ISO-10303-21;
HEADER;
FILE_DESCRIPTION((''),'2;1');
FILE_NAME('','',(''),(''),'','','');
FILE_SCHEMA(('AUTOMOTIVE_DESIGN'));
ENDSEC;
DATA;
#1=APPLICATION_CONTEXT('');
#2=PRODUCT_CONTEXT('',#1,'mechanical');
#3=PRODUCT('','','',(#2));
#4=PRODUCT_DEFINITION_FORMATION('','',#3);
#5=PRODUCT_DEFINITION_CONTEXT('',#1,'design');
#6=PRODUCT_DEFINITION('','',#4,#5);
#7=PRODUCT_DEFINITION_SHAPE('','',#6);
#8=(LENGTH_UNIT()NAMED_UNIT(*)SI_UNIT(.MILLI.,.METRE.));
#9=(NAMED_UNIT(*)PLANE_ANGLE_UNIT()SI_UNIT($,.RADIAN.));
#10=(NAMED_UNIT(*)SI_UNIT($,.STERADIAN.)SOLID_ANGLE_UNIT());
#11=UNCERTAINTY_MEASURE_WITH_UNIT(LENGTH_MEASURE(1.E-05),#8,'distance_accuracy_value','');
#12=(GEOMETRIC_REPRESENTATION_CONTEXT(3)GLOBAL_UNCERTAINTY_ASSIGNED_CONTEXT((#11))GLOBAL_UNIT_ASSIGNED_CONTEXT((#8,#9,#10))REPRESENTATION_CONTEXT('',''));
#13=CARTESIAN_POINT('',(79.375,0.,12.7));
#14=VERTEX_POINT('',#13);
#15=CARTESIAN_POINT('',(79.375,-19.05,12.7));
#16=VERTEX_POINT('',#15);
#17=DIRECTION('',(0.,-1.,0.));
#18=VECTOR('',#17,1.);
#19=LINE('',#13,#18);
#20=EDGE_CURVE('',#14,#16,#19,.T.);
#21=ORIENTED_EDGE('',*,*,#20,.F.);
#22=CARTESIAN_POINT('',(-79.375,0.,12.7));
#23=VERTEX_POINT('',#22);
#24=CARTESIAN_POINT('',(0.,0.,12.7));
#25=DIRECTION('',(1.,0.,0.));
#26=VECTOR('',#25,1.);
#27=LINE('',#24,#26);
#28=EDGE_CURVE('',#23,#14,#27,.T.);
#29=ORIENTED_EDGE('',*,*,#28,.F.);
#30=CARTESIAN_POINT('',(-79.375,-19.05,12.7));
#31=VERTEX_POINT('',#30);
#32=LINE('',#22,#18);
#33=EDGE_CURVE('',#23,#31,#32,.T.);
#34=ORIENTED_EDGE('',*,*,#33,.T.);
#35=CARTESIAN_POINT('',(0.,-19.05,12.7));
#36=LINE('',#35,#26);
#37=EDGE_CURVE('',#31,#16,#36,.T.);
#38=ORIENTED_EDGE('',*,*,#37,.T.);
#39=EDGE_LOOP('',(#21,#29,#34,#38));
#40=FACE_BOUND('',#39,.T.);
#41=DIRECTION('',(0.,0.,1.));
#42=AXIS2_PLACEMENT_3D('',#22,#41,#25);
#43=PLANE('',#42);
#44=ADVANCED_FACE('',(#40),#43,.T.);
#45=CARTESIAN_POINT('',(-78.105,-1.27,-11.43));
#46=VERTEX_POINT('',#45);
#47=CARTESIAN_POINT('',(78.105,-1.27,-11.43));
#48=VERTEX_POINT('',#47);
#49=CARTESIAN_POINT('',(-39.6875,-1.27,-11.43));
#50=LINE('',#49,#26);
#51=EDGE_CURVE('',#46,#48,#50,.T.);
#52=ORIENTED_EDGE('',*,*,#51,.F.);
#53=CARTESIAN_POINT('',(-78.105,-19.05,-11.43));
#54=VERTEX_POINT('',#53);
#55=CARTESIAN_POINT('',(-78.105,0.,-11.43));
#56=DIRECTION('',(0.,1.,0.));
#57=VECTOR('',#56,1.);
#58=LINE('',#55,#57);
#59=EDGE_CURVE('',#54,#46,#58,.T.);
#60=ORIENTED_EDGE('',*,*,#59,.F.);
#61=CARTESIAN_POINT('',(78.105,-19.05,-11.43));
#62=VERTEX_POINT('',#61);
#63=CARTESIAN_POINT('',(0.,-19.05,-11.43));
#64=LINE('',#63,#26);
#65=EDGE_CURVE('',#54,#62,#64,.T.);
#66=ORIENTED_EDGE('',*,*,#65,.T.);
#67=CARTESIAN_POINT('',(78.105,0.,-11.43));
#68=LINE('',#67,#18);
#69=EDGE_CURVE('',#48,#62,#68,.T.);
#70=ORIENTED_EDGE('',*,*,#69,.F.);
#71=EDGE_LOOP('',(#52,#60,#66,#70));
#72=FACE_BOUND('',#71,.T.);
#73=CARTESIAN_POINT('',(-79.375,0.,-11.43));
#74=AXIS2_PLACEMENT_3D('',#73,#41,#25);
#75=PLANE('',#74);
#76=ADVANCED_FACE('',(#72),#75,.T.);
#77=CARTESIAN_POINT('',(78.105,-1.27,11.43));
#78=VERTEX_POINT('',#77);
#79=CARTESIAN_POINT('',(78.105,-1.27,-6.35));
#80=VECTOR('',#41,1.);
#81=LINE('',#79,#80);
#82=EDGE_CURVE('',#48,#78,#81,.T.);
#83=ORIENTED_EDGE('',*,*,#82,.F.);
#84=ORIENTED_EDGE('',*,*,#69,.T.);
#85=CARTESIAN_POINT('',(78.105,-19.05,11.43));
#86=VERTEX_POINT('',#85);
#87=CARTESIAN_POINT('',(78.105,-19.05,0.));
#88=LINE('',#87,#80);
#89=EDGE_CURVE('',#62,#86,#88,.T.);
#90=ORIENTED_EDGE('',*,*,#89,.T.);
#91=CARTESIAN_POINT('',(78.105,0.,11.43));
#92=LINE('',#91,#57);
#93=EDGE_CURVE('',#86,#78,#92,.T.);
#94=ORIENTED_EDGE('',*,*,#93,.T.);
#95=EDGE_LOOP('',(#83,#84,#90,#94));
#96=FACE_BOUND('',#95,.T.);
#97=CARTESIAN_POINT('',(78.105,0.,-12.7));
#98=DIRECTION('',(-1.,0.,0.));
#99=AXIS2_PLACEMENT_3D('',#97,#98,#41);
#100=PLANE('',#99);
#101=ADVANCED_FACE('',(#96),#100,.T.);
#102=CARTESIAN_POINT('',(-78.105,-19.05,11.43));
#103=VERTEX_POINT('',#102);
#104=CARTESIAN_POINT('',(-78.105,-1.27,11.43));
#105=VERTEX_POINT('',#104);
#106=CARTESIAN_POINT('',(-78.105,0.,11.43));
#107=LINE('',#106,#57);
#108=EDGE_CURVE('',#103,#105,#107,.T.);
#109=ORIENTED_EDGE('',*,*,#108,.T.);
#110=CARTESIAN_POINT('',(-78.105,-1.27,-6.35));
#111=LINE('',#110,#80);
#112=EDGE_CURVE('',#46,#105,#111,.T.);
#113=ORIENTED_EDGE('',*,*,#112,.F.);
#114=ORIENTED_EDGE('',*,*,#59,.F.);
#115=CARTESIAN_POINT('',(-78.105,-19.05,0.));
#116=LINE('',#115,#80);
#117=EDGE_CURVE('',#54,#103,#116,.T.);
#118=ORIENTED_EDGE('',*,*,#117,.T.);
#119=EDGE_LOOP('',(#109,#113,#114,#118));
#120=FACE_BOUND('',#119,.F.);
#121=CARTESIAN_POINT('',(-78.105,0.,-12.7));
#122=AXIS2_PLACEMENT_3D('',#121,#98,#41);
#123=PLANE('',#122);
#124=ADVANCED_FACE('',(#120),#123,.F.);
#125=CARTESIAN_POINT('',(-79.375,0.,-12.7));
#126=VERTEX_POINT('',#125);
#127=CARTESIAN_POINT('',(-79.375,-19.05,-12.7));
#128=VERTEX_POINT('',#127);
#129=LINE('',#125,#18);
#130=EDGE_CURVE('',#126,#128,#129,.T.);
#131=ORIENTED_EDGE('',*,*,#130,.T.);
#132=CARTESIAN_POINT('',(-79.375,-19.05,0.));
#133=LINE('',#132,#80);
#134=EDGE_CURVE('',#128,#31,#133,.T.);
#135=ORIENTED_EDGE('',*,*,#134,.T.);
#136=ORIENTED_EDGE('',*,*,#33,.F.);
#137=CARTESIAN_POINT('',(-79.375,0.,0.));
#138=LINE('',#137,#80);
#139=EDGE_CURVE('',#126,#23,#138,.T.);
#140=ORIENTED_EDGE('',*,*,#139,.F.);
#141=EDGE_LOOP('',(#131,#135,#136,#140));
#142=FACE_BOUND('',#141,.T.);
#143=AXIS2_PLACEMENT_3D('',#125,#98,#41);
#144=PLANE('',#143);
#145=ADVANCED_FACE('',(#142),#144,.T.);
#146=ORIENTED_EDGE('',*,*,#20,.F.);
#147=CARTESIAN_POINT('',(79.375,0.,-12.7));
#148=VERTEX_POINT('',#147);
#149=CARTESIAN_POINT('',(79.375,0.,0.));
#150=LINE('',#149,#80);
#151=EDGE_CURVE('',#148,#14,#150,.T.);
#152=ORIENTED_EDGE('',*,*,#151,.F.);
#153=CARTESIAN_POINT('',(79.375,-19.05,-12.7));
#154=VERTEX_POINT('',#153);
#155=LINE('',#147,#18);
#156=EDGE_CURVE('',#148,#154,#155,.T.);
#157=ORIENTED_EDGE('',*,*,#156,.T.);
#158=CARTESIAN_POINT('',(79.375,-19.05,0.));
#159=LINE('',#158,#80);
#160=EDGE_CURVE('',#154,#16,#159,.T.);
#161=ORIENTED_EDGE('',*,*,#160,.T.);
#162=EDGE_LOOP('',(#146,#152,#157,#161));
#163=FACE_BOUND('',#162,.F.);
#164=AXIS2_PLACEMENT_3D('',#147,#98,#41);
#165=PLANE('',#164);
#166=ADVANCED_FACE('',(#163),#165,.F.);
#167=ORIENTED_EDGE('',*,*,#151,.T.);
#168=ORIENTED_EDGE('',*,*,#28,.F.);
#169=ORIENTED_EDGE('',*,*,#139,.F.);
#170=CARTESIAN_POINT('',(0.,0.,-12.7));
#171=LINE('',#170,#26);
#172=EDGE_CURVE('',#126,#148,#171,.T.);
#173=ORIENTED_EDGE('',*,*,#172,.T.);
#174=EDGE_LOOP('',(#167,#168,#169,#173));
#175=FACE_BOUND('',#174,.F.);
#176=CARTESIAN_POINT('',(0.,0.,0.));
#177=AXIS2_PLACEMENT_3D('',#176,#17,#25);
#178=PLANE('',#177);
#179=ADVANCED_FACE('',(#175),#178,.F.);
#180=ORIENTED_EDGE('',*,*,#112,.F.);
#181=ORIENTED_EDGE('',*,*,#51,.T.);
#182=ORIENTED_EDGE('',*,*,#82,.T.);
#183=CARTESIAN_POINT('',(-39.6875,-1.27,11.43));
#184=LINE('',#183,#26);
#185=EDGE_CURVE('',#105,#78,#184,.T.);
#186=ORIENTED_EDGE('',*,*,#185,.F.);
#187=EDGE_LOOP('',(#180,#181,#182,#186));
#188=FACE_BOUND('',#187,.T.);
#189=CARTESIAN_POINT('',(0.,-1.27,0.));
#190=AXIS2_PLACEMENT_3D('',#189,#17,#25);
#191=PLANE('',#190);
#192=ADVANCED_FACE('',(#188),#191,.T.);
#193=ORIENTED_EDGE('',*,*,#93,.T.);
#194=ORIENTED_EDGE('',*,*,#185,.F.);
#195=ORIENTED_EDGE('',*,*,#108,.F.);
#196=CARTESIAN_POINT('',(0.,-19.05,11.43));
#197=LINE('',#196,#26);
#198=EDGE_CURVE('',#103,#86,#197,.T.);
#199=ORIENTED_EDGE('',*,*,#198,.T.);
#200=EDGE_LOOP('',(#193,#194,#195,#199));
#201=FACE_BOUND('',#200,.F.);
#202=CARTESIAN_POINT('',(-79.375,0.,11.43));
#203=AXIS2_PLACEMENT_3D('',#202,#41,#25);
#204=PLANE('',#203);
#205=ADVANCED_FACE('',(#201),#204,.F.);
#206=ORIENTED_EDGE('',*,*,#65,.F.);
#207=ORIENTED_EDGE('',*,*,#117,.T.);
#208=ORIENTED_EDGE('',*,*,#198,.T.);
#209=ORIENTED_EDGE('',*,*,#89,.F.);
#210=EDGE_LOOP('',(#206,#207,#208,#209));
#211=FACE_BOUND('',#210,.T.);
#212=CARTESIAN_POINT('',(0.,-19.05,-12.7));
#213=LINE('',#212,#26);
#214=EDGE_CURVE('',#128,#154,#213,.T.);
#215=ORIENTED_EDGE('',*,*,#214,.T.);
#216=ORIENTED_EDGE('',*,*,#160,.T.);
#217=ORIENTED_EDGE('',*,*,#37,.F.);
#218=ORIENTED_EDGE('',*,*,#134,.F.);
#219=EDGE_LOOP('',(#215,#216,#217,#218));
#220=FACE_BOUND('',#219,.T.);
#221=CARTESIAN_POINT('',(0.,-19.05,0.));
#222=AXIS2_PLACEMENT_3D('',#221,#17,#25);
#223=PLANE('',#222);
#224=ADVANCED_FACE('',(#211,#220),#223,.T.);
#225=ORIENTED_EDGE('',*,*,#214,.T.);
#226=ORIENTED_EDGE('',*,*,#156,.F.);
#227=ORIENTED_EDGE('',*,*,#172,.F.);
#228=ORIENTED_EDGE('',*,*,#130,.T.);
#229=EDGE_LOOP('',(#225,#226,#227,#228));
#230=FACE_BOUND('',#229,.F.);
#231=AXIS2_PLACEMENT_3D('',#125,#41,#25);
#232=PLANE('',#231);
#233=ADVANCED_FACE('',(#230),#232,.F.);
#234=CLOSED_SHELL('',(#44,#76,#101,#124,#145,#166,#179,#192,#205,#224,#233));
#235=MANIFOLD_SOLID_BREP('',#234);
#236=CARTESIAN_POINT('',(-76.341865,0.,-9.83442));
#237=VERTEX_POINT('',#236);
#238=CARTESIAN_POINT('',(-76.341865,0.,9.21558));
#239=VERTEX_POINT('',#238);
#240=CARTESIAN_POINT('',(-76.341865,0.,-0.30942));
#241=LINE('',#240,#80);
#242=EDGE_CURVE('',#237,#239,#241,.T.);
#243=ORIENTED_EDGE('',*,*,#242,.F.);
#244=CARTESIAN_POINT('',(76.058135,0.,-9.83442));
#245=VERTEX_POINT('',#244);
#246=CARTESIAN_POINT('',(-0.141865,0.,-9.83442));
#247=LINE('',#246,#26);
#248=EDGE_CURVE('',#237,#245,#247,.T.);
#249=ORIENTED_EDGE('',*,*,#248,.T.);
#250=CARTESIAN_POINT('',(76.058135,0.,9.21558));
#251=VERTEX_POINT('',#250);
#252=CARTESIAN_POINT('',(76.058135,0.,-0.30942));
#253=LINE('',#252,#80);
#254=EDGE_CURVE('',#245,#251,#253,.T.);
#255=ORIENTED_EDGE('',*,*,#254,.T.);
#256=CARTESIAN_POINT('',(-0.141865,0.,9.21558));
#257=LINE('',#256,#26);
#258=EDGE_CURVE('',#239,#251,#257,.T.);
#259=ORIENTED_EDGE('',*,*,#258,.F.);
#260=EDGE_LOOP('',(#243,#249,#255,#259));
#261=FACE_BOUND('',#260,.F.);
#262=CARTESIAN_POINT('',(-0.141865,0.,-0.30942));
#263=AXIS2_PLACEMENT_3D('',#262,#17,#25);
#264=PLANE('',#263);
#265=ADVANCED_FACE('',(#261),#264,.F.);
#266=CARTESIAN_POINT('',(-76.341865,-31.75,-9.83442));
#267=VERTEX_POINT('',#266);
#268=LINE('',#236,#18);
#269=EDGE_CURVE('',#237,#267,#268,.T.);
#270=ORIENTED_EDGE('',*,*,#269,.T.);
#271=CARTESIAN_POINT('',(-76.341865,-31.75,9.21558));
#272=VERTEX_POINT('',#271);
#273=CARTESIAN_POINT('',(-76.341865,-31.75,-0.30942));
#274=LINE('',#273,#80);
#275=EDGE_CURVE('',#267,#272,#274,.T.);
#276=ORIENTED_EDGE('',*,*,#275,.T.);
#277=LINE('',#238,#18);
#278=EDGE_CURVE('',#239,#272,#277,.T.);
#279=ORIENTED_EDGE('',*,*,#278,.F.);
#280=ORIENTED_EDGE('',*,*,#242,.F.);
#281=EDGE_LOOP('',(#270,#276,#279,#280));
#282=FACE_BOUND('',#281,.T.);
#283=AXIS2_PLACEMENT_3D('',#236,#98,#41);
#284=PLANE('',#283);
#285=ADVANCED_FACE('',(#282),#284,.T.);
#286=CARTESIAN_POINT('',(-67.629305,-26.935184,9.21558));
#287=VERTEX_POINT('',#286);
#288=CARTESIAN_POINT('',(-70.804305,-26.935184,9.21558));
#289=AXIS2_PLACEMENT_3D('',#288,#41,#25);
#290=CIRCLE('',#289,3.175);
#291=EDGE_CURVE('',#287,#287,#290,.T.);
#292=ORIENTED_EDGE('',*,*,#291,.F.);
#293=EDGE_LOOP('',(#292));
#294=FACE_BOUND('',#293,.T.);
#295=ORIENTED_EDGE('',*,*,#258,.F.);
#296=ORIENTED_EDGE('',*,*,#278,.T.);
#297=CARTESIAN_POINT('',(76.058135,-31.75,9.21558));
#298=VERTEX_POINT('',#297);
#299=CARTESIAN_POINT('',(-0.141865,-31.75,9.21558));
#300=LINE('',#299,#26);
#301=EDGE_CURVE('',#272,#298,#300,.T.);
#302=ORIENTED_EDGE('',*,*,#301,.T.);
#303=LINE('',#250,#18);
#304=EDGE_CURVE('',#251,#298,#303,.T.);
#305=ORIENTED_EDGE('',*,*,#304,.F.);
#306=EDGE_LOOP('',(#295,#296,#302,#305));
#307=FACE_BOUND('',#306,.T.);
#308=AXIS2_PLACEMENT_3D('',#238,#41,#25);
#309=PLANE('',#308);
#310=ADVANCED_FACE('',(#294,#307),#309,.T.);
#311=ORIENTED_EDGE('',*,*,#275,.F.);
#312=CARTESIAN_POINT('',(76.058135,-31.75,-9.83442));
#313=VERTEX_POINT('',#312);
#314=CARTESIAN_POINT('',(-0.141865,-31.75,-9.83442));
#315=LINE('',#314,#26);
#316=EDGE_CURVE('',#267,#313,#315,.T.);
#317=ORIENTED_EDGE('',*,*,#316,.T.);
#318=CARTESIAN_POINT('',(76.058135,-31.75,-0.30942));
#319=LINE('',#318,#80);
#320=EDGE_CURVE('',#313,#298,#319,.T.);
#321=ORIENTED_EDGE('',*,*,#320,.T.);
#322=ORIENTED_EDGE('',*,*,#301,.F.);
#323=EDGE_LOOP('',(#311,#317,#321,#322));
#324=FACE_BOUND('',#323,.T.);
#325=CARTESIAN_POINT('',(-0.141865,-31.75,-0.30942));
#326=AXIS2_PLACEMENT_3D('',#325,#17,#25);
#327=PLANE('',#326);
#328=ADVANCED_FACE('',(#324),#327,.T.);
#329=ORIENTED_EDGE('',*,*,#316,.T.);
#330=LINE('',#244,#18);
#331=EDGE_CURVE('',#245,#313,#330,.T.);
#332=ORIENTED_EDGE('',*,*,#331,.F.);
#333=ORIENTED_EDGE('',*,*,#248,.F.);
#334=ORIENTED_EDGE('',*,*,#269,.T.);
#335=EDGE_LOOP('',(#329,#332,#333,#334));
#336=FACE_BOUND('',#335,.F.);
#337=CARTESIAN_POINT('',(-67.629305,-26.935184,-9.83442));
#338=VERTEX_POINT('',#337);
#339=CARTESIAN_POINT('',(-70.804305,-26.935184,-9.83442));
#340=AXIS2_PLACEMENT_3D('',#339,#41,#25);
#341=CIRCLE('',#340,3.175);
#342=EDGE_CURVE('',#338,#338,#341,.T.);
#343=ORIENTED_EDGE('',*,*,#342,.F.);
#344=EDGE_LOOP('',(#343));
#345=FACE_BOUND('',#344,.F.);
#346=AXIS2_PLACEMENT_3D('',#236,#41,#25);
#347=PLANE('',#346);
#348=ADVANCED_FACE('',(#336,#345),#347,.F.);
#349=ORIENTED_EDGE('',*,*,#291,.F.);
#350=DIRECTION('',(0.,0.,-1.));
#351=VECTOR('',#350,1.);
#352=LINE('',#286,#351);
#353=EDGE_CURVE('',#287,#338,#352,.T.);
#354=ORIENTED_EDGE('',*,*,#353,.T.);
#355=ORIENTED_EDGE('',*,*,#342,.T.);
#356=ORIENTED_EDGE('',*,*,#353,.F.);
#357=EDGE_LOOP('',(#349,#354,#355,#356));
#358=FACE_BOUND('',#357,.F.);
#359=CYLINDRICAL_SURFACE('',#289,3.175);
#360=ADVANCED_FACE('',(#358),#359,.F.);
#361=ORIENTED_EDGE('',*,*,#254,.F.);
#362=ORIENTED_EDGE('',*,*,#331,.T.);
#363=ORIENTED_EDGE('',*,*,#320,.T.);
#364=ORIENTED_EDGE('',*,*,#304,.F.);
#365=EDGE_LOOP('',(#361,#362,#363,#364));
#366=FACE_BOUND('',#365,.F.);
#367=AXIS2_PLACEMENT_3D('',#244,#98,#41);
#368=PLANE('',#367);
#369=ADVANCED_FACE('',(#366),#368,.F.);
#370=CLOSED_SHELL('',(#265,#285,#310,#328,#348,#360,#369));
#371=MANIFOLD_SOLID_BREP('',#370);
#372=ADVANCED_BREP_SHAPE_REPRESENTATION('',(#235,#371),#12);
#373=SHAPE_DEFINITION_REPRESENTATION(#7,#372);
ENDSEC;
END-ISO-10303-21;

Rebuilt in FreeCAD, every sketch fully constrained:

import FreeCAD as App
import Part
import Sketcher
Q = App.Units.Quantity


def faces_at(feature, points):
    """Names of the faces that lie closest to the given points."""
    faces = feature.Shape.Faces
    near = lambda p: min(range(len(faces)), key=lambda i: faces[i].distToShape(Part.Vertex(*p))[0])
    return sorted({f"Face{near(p) + 1}" for p in points})

doc = App.newDocument("Part")
body = doc.addObject("PartDesign::Body", "Body")

sketch1 = doc.addObject("Sketcher::SketchObject", "Sketch")
body.addObject(sketch1)
sketch1.AttachmentSupport = (doc.XZ_Plane, [""])
sketch1.MapMode = "FlatFace"
sketch1.addGeometry([
    Part.LineSegment(App.Vector(-79, 13, 0), App.Vector(-79, -13, 0)),
    Part.LineSegment(App.Vector(-79, -13, 0), App.Vector(79, -13, 0)),
    Part.LineSegment(App.Vector(79, -13, 0), App.Vector(79, 13, 0)),
    Part.LineSegment(App.Vector(79, 13, 0), App.Vector(-79, 13, 0)),
], False)
sketch1.addConstraint([
    Sketcher.Constraint("Coincident", 0, 2, 1, 1),
    Sketcher.Constraint("Coincident", 1, 2, 2, 1),
    Sketcher.Constraint("Coincident", 2, 2, 3, 1),
    Sketcher.Constraint("Coincident", 3, 2, 0, 1),
    Sketcher.Constraint("Vertical", 0),
    Sketcher.Constraint("Horizontal", 1),
    Sketcher.Constraint("Vertical", 2),
    Sketcher.Constraint("Horizontal", 3),
    Sketcher.Constraint("Symmetric", 0, 2, 2, 2, -1, 1),
    Sketcher.Constraint("DistanceY", 0, 2, 0, 1, Q("1 in")),
    Sketcher.Constraint("DistanceX", 1, 1, 1, 2, Q("6.25 in")),
])
pad1 = doc.addObject("PartDesign::Pad", "Pad")
body.addObject(pad1)
pad1.Profile = sketch1
pad1.Length = Q("0.75 in")
doc.recompute()

thickness = doc.addObject("PartDesign::Thickness", "Thickness")
body.addObject(thickness)
thickness.Base = (pad1, faces_at(pad1, [(0, -19.05, 0)]))
thickness.Value = Q("0.05 in")
thickness.Reversed = True
thickness.Join = "Arc"
body2 = doc.addObject("PartDesign::Body", "Body001")

sketch2 = doc.addObject("Sketcher::SketchObject", "Sketch001")
body2.addObject(sketch2)
sketch2.AttachmentSupport = (doc.getObject("XZ_Plane001"), [""])
sketch2.MapMode = "FlatFace"
sketch2.addGeometry([
    Part.LineSegment(App.Vector(-76, 9, 0), App.Vector(-76, -10, 0)),
    Part.LineSegment(App.Vector(-76, -10, 0), App.Vector(76, -10, 0)),
    Part.LineSegment(App.Vector(76, -10, 0), App.Vector(76, 9, 0)),
    Part.LineSegment(App.Vector(76, 9, 0), App.Vector(-76, 9, 0)),
], False)
sketch2.addConstraint([
    Sketcher.Constraint("Coincident", 0, 2, 1, 1),
    Sketcher.Constraint("Coincident", 1, 2, 2, 1),
    Sketcher.Constraint("Coincident", 2, 2, 3, 1),
    Sketcher.Constraint("Coincident", 3, 2, 0, 1),
    Sketcher.Constraint("Vertical", 0),
    Sketcher.Constraint("Horizontal", 1),
    Sketcher.Constraint("Vertical", 2),
    Sketcher.Constraint("Horizontal", 3),
    Sketcher.Constraint("DistanceX", 1, 1, 1, 2, Q("6 in")),
    Sketcher.Constraint("DistanceY", 0, 2, 0, 1, Q("0.75 in")),
    Sketcher.Constraint("DistanceY", 0, 2, -1, 1, Q("9.83442 mm")),
    Sketcher.Constraint("DistanceX", 0, 2, -1, 1, Q("76.341865 mm")),
])
pad2 = doc.addObject("PartDesign::Pad", "Pad001")
body2.addObject(pad2)
pad2.Profile = sketch2
pad2.Length = Q("1.25 in")

sketch3 = doc.addObject("Sketcher::SketchObject", "Sketch002")
body2.addObject(sketch3)
sketch3.AttachmentSupport = (doc.getObject("XY_Plane001"), [""])
sketch3.MapMode = "FlatFace"
sketch3.AttachmentOffset = App.Placement(App.Vector(0, 0, 9.21558), App.Rotation())
sketch3.addGeometry(Part.Circle(App.Vector(-70.8, -26.9, 0), App.Vector(0, 0, 1), 3.2), False)
sketch3.addConstraint([
    Sketcher.Constraint("Diameter", 0, Q("0.25 in")),
    Sketcher.Constraint("DistanceX", 0, 3, -1, 1, Q("70.804305 mm")),
    Sketcher.Constraint("DistanceY", 0, 3, -1, 1, Q("26.935184 mm")),
])
pocket1 = doc.addObject("PartDesign::Pocket", "Pocket")
body2.addObject(pocket1)
pocket1.Profile = sketch3
pocket1.Length = Q("1 in")

doc.recompute()
